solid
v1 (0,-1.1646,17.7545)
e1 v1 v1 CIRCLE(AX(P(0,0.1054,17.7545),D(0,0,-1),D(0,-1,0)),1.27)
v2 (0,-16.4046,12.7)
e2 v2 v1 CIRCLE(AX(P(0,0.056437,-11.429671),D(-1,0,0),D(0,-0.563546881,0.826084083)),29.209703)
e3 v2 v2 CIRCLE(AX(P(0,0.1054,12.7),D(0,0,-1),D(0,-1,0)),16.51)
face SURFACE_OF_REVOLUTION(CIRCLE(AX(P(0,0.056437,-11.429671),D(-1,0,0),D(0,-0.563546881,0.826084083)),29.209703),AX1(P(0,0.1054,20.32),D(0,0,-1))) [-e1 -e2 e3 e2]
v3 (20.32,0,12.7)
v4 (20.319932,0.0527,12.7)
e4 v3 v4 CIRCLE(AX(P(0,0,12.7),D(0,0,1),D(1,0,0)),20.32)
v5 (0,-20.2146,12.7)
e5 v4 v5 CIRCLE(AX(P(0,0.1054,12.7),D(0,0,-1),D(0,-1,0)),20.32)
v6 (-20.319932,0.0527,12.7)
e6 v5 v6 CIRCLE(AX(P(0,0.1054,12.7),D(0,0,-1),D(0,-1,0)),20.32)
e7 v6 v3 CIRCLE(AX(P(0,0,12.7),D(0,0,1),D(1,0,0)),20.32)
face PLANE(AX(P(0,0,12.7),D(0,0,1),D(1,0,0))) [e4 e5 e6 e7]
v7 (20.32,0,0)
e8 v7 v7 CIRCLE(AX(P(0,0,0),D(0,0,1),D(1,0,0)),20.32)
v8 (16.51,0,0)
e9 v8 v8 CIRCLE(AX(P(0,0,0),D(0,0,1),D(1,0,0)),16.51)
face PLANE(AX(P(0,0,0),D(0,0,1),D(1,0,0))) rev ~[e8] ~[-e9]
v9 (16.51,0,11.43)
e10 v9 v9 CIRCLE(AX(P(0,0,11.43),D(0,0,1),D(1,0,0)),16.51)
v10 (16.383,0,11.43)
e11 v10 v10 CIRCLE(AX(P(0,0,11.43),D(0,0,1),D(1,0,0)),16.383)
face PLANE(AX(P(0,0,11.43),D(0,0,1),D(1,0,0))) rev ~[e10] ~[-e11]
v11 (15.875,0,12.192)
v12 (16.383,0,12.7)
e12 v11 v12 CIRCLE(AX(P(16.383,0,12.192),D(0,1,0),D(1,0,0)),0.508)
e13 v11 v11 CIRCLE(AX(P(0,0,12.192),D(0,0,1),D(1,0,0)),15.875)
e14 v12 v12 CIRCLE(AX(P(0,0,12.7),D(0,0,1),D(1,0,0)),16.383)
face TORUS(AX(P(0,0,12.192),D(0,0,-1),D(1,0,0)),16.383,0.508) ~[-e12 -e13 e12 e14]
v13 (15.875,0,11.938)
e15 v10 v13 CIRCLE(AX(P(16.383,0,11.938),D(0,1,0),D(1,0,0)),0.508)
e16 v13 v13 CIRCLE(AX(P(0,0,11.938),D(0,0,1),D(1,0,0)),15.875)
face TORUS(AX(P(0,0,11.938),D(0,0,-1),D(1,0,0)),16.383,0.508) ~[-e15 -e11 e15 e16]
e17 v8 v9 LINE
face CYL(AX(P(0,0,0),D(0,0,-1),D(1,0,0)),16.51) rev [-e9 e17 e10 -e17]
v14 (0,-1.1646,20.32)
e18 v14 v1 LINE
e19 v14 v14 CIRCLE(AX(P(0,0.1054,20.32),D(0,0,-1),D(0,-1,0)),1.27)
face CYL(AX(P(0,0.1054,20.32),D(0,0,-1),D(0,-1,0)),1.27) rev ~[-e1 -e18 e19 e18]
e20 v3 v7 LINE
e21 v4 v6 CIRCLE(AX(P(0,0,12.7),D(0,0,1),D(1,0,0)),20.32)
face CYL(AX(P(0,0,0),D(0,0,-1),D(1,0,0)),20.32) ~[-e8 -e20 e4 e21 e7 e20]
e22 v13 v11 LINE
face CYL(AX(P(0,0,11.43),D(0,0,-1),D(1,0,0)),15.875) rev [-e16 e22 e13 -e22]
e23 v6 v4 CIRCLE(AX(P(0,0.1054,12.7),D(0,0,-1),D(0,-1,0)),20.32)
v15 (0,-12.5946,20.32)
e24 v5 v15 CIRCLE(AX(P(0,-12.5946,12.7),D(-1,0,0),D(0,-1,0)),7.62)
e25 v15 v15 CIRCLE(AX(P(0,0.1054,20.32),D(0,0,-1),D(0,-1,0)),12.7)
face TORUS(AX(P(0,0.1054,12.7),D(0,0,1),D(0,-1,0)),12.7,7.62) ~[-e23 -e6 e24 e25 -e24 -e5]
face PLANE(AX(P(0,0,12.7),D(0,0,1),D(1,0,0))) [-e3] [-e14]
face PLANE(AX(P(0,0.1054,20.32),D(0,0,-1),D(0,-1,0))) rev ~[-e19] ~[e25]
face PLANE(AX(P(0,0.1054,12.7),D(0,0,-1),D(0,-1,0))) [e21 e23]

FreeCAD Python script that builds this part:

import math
import FreeCAD as App
import Part
import Sketcher

V = App.Vector
Q = App.Units.Quantity


def edges_at(feature, points):
    """Names of the edges that pass closest to the given points."""
    edges = feature.Shape.Edges
    near = lambda p: min(range(len(edges)), key=lambda i: edges[i].distToShape(Part.Vertex(*p))[0])
    return sorted({f"Edge{near(p) + 1}" for p in points})

doc = App.newDocument("Part")
body = doc.addObject("PartDesign::Body", "Body")

sketch1 = body.newObject("Sketcher::SketchObject", "Sketch")
sketch1.AttachmentSupport = (doc.getObject("XY_Plane"), [""])
sketch1.MapMode = "FlatFace"
sketch1.addGeometry(Part.Circle(V(0, 0, 0), V(0, 0, 1), 20), False)
sketch1.addGeometry(Part.Circle(V(0, 0, 0), V(0, 0, 1), 17), False)
sketch1.addConstraint(Sketcher.Constraint("Coincident", 0, 3, -1, 1))
sketch1.addConstraint(Sketcher.Constraint("Coincident", 1, 3, -1, 1))
sketch1.addConstraint(Sketcher.Constraint("Diameter", 0, Q("1.6 in")))
sketch1.addConstraint(Sketcher.Constraint("Diameter", 1, Q("1.3 in")))
pad1 = body.newObject("PartDesign::Pad", "Pad")
pad1.Profile = sketch1
pad1.Length = Q("0.45 in")

sketch2 = body.newObject("Sketcher::SketchObject", "Sketch001")
sketch2.AttachmentSupport = (doc.getObject("XY_Plane"), [""])
sketch2.MapMode = "FlatFace"
sketch2.AttachmentOffset = App.Placement(V(0, 0, 0.45 * 25.4), App.Rotation())
sketch2.addGeometry(Part.Circle(V(0, 0, 0), V(0, 0, 1), 20), False)
sketch2.addGeometry(Part.Circle(V(0, 0, 0), V(0, 0, 1), 16), False)
sketch2.addConstraint(Sketcher.Constraint("Coincident", 0, 3, -1, 1))
sketch2.addConstraint(Sketcher.Constraint("Coincident", 1, 3, -1, 1))
sketch2.addConstraint(Sketcher.Constraint("Diameter", 1, Q("1.25 in")))
sketch2.addConstraint(Sketcher.Constraint("Diameter", 0, Q("1.6 in")))
pad2 = body.newObject("PartDesign::Pad", "Pad001")
pad2.Profile = sketch2
pad2.Length = Q("0.05 in")
doc.recompute()

fillet = body.newObject("PartDesign::Fillet", "Fillet")
fillet.Base = (pad2, edges_at(pad2, [(-15.875, 0, 11.43)]))
fillet.Radius = Q("0.02 in")
doc.recompute()

fillet2 = body.newObject("PartDesign::Fillet", "Fillet001")
fillet2.Base = (fillet, edges_at(fillet, [(-15.875, 0, 12.7)]))
fillet2.Radius = Q("0.02 in")

sketch3 = body.newObject("Sketcher::SketchObject", "Sketch002")
sketch3.AttachmentSupport = (doc.getObject("YZ_Plane"), [""])
sketch3.MapMode = "FlatFace"
sketch3.addGeometry(Part.LineSegment(V(-16.4, 12.7, 0), V(-20.2, 12.7, 0)), False)
sketch3.addGeometry(Part.ArcOfCircle(Part.Circle(V(-12.6, 12.7, 0), V(0, 0, 1), 7.6), math.radians(90), math.radians(180)), False)
sketch3.addGeometry(Part.LineSegment(V(-12.6, 20.3, 0), V(-1.2, 20.3, 0)), False)
sketch3.addGeometry(Part.LineSegment(V(-1.2, 20.3, 0), V(-1.2, 17.8, 0)), False)
sketch3.addGeometry(Part.ArcOfCircle(Part.Circle(V(0.1, -11.4, 0), V(0, 0, 1), 29.2), math.radians(92), math.radians(124)), False)
sketch3.addGeometry(Part.LineSegment(V(0.1, 20.3, 0), V(0.1, -11.4, 0)), True)
sketch3.addConstraint(Sketcher.Constraint("Coincident", 0, 2, 1, 2))
sketch3.addConstraint(Sketcher.Constraint("Tangent", 1, 1, 2, 1))
sketch3.addConstraint(Sketcher.Constraint("Coincident", 2, 2, 3, 1))
sketch3.addConstraint(Sketcher.Constraint("Coincident", 3, 2, 4, 1))
sketch3.addConstraint(Sketcher.Constraint("Coincident", 4, 2, 0, 1))
sketch3.addConstraint(Sketcher.Constraint("Horizontal", 0))
sketch3.addConstraint(Sketcher.Constraint("Horizontal", 2))
sketch3.addConstraint(Sketcher.Constraint("Vertical", 3))
sketch3.addConstraint(Sketcher.Constraint("Vertical", 5))
sketch3.addConstraint(Sketcher.Constraint("Horizontal", 1, 3, 0, 2))
sketch3.addConstraint(Sketcher.Constraint("Horizontal", 2, 2, 5, 1))
sketch3.addConstraint(Sketcher.Constraint("Horizontal", 4, 3, 5, 2))
sketch3.addConstraint(Sketcher.Constraint("Radius", 1, Q("0.3 in")))
sketch3.addConstraint(Sketcher.Constraint("Radius", 4, Q("1.15 in")))
sketch3.addConstraint(Sketcher.Constraint("DistanceX", 0, 2, 0, 1, Q("0.15 in")))
sketch3.addConstraint(Sketcher.Constraint("DistanceY", -1, 1, 1, 1, Q("0.8 in")))
sketch3.addConstraint(Sketcher.Constraint("DistanceX", 0, 2, 5, 2, Q("0.8 in")))
sketch3.addConstraint(Sketcher.Constraint("DistanceX", 2, 1, 2, 2, Q("0.45 in")))
sketch3.addConstraint(Sketcher.Constraint("DistanceY", 5, 2, 5, 1, Q("1.25 in")))
sketch3.addConstraint(Sketcher.Constraint("DistanceX", 1, 3, -1, 1, Q("12.5946 mm")))
revolution = body.newObject("PartDesign::Revolution", "Revolution")
revolution.Profile = sketch3
revolution.ReferenceAxis = (sketch3, ["Axis0"])
revolution.Angle = 360

doc.recompute()
